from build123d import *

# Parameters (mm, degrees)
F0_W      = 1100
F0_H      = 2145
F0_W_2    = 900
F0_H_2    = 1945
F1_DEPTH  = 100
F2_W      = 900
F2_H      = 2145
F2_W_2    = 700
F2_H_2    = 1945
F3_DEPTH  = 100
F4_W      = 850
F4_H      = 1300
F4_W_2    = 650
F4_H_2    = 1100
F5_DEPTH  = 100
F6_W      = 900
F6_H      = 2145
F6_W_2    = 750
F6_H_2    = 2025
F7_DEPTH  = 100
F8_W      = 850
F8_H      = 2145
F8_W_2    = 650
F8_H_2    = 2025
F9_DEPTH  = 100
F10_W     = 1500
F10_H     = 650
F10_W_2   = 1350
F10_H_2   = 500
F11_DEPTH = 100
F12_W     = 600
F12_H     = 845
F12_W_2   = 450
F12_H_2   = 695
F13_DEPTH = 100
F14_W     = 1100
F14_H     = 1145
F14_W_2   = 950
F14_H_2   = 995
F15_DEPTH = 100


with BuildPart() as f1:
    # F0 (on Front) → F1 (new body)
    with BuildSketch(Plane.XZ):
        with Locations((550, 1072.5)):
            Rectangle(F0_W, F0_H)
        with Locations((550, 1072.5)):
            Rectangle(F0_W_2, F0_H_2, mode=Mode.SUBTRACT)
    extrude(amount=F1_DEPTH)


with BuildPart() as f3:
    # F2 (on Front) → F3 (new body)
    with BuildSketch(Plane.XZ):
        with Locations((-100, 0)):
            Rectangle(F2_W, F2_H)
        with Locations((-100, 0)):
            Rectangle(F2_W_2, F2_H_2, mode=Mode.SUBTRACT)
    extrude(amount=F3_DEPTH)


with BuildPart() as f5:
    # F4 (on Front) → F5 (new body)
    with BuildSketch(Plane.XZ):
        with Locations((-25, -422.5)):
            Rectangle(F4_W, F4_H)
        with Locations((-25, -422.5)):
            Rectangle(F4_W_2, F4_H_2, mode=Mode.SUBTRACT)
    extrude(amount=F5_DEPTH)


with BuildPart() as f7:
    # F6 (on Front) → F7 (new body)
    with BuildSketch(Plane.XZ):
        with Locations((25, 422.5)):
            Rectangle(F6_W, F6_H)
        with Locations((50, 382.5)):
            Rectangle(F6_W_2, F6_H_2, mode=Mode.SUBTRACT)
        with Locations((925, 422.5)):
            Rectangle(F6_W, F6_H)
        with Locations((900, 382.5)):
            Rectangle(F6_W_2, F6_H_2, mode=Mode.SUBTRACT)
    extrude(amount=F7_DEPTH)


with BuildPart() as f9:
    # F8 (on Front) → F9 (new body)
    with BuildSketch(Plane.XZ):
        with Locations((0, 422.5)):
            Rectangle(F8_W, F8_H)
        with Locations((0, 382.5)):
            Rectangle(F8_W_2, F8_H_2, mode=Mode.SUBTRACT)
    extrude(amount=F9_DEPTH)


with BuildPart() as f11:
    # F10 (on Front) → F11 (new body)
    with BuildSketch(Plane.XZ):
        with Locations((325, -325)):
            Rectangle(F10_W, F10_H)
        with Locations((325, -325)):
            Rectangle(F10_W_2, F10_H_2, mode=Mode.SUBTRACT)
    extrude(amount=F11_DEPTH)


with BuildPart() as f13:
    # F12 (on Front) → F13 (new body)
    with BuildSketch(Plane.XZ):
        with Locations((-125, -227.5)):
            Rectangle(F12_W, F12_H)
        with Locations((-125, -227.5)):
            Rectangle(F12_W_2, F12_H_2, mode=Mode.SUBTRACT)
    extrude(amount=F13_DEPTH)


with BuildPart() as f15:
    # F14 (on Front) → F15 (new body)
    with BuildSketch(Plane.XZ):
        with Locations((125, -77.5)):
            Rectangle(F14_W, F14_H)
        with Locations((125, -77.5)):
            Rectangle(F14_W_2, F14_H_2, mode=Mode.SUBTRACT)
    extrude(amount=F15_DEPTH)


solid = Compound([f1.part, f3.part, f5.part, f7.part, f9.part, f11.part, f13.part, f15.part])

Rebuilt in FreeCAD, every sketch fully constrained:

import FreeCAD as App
import Part
import Sketcher
from FreeCAD import Vector


def add_polygon(sketch, points):
    """Adds a closed chain of lines whose ends are joined by coincident constraints."""
    first, n = sketch.GeometryCount, len(points)
    for a, b in zip(points, points[1:] + points[:1]):
        sketch.addGeometry(Part.LineSegment(App.Vector(*a, 0), App.Vector(*b, 0)), False)
    for i in range(n):
        sketch.addConstraint(Sketcher.Constraint("Coincident", first + i, 2, first + (i + 1) % n, 1))

doc = App.newDocument("Part")
body = doc.addObject("PartDesign::Body", "Body")

# Sketch on XZ plane
sketch1 = body.newObject("Sketcher::SketchObject", "Sketch")
sketch1.AttachmentSupport = (doc.getObject("XZ_Plane"), [""])
sketch1.MapMode = "FlatFace"
add_polygon(sketch1, [(0, 2145), (0, 0), (1100, 0), (1100, 2145)])  # lines 0-3
add_polygon(sketch1, [(1000, 100), (100, 100), (100, 2045), (1000, 2045)])  # lines 4-7
sketch1.addConstraint([
    Sketcher.Constraint("Vertical", 0),
    Sketcher.Constraint("Horizontal", 1),
    Sketcher.Constraint("Vertical", 2),
    Sketcher.Constraint("Horizontal", 3),
    Sketcher.Constraint("Horizontal", 4),
    Sketcher.Constraint("Vertical", 5),
    Sketcher.Constraint("Horizontal", 6),
    Sketcher.Constraint("Vertical", 7),
    Sketcher.Constraint("Coincident", 0, 2, -1, 1),
    Sketcher.Constraint("DistanceX", 1, 1, 1, 2, 1100.0),
    Sketcher.Constraint("DistanceX", 4, 2, 4, 1, 900.0),
    Sketcher.Constraint("DistanceY", 0, 2, 0, 1, 2145.0),
    Sketcher.Constraint("DistanceY", 5, 1, 5, 2, 1945.0),
    Sketcher.Constraint("DistanceX", -1, 1, 4, 2, 100.0),
    Sketcher.Constraint("DistanceY", -1, 1, 4, 2, 100.0),
])
pad1 = body.newObject("PartDesign::Pad", "Pad")
pad1.Profile = sketch1
pad1.Length = 100
body2 = doc.addObject("PartDesign::Body", "Body001")

# Sketch on XZ plane
sketch2 = body2.newObject("Sketcher::SketchObject", "Sketch001")
sketch2.AttachmentSupport = (doc.getObject("XZ_Plane001"), [""])
sketch2.MapMode = "FlatFace"
add_polygon(sketch2, [(-550, 1072.5), (-550, -1072.5), (350, -1072.5), (350, 1072.5)])  # lines 0-3
add_polygon(sketch2, [(250, -972.5), (-450, -972.5), (-450, 972.5), (250, 972.5)])  # lines 4-7
sketch2.addConstraint([
    Sketcher.Constraint("Vertical", 0),
    Sketcher.Constraint("Horizontal", 1),
    Sketcher.Constraint("Vertical", 2),
    Sketcher.Constraint("Horizontal", 3),
    Sketcher.Constraint("Horizontal", 4),
    Sketcher.Constraint("Vertical", 5),
    Sketcher.Constraint("Horizontal", 6),
    Sketcher.Constraint("Vertical", 7),
    Sketcher.Constraint("DistanceX", 1, 1, 1, 2, 900.0),
    Sketcher.Constraint("DistanceX", 4, 2, 4, 1, 700.0),
    Sketcher.Constraint("DistanceY", 0, 2, 0, 1, 2145.0),
    Sketcher.Constraint("DistanceY", 5, 1, 5, 2, 1945.0),
    Sketcher.Constraint("DistanceX", 0, 2, -1, 1, 550.0),
    Sketcher.Constraint("DistanceX", 4, 2, -1, 1, 450.0),
    Sketcher.Constraint("DistanceY", 0, 2, 4, 2, 100.0),
    Sketcher.Constraint("DistanceY", 0, 2, -1, 1, 1072.5),
])
pad2 = body2.newObject("PartDesign::Pad", "Pad001")
pad2.Profile = sketch2
pad2.Length = 100
body3 = doc.addObject("PartDesign::Body", "Body002")

# Sketch on XZ plane
sketch3 = body3.newObject("Sketcher::SketchObject", "Sketch002")
sketch3.AttachmentSupport = (doc.getObject("XZ_Plane002"), [""])
sketch3.MapMode = "FlatFace"
add_polygon(sketch3, [(-450, 227.5), (-450, -1072.5), (400, -1072.5), (400, 227.5)])  # lines 0-3
add_polygon(sketch3, [(300, -972.5), (-350, -972.5), (-350, 127.5), (300, 127.5)])  # lines 4-7
sketch3.addConstraint([
    Sketcher.Constraint("Vertical", 0),
    Sketcher.Constraint("Horizontal", 1),
    Sketcher.Constraint("Vertical", 2),
    Sketcher.Constraint("Horizontal", 3),
    Sketcher.Constraint("Horizontal", 4),
    Sketcher.Constraint("Vertical", 5),
    Sketcher.Constraint("Horizontal", 6),
    Sketcher.Constraint("Vertical", 7),
    Sketcher.Constraint("DistanceX", 1, 1, 1, 2, 850.0),
    Sketcher.Constraint("DistanceX", 4, 2, 4, 1, 650.0),
    Sketcher.Constraint("DistanceY", 0, 2, 0, 1, 1300.0),
    Sketcher.Constraint("DistanceY", 5, 1, 5, 2, 1100.0),
    Sketcher.Constraint("DistanceX", 0, 2, -1, 1, 450.0),
    Sketcher.Constraint("DistanceX", 4, 2, -1, 1, 350.0),
    Sketcher.Constraint("DistanceY", 0, 2, 4, 2, 100.0),
    Sketcher.Constraint("DistanceY", 0, 2, -1, 1, 1072.5),
])
pad3 = body3.newObject("PartDesign::Pad", "Pad002")
pad3.Profile = sketch3
pad3.Length = 100
body4 = doc.addObject("PartDesign::Body", "Body003")

# Sketch on XZ plane
sketch4 = body4.newObject("Sketcher::SketchObject", "Sketch003")
sketch4.AttachmentSupport = (doc.getObject("XZ_Plane003"), [""])
sketch4.MapMode = "FlatFace"
add_polygon(sketch4, [(-425, 1495), (-425, -650), (1375, -650), (1375, 1495)])  # lines 0-3
add_polygon(sketch4, [(425, -630), (-325, -630), (-325, 1395), (425, 1395)])  # lines 4-7
add_polygon(sketch4, [(1275, -630), (525, -630), (525, 1395), (1275, 1395)])  # lines 8-11
sketch4.addConstraint([
    Sketcher.Constraint("Vertical", 0),
    Sketcher.Constraint("Horizontal", 1),
    Sketcher.Constraint("Vertical", 2),
    Sketcher.Constraint("Horizontal", 3),
    Sketcher.Constraint("Horizontal", 4),
    Sketcher.Constraint("Vertical", 5),
    Sketcher.Constraint("Horizontal", 6),
    Sketcher.Constraint("Vertical", 7),
    Sketcher.Constraint("Horizontal", 8),
    Sketcher.Constraint("Vertical", 9),
    Sketcher.Constraint("Horizontal", 10),
    Sketcher.Constraint("Vertical", 11),
    Sketcher.Constraint("Horizontal", 7, 2, 8, 2),
    Sketcher.Constraint("Horizontal", 6, 2, 9, 2),
    Sketcher.Constraint("Equal", 6, 8),
    Sketcher.Constraint("DistanceX", 1, 1, 1, 2, 1800.0),
    Sketcher.Constraint("DistanceX", 4, 2, 4, 1, 750.0),
    Sketcher.Constraint("DistanceY", 0, 2, 0, 1, 2145.0),
    Sketcher.Constraint("DistanceY", 5, 1, 5, 2, 2025.0),
    Sketcher.Constraint("DistanceX", 0, 2, -1, 1, 425.0),
    Sketcher.Constraint("DistanceY", 0, 2, -1, 1, 650.0),
    Sketcher.Constraint("DistanceX", 4, 2, -1, 1, 325.0),
    Sketcher.Constraint("DistanceY", 4, 2, -1, 1, 630.0),
    Sketcher.Constraint("DistanceX", -1, 1, 8, 2, 525.0),
])
pad4 = body4.newObject("PartDesign::Pad", "Pad003")
pad4.Profile = sketch4
pad4.Length = 100
body5 = doc.addObject("PartDesign::Body", "Body004")

# Sketch on XZ plane
sketch5 = body5.newObject("Sketcher::SketchObject", "Sketch004")
sketch5.AttachmentSupport = (doc.getObject("XZ_Plane004"), [""])
sketch5.MapMode = "FlatFace"
add_polygon(sketch5, [(-425, 1495), (-425, -650), (425, -650), (425, 1495)])  # lines 0-3
add_polygon(sketch5, [(325, -630), (-325, -630), (-325, 1395), (325, 1395)])  # lines 4-7
sketch5.addConstraint([
    Sketcher.Constraint("Vertical", 0),
    Sketcher.Constraint("Horizontal", 1),
    Sketcher.Constraint("Vertical", 2),
    Sketcher.Constraint("Horizontal", 3),
    Sketcher.Constraint("Horizontal", 4),
    Sketcher.Constraint("Vertical", 5),
    Sketcher.Constraint("Horizontal", 6),
    Sketcher.Constraint("Vertical", 7),
    Sketcher.Constraint("DistanceX", 1, 1, 1, 2, 850.0),
    Sketcher.Constraint("DistanceX", 4, 2, 4, 1, 650.0),
    Sketcher.Constraint("DistanceY", 0, 2, 0, 1, 2145.0),
    Sketcher.Constraint("DistanceY", 5, 1, 5, 2, 2025.0),
    Sketcher.Constraint("DistanceX", 0, 2, -1, 1, 425.0),
    Sketcher.Constraint("DistanceY", 0, 2, -1, 1, 650.0),
    Sketcher.Constraint("DistanceX", 4, 2, -1, 1, 325.0),
    Sketcher.Constraint("DistanceY", 4, 2, -1, 1, 630.0),
])
pad5 = body5.newObject("PartDesign::Pad", "Pad004")
pad5.Profile = sketch5
pad5.Length = 100
body6 = doc.addObject("PartDesign::Body", "Body005")

# Sketch on XZ plane
sketch6 = body6.newObject("Sketcher::SketchObject", "Sketch005")
sketch6.AttachmentSupport = (doc.getObject("XZ_Plane005"), [""])
sketch6.MapMode = "FlatFace"
add_polygon(sketch6, [(-425, 0), (-425, -650), (1075, -650), (1075, 0)])  # lines 0-3
add_polygon(sketch6, [(1000, -575), (-350, -575), (-350, -75), (1000, -75)])  # lines 4-7
sketch6.addConstraint([
    Sketcher.Constraint("Vertical", 0),
    Sketcher.Constraint("Horizontal", 1),
    Sketcher.Constraint("Vertical", 2),
    Sketcher.Constraint("Horizontal", 3),
    Sketcher.Constraint("Horizontal", 4),
    Sketcher.Constraint("Vertical", 5),
    Sketcher.Constraint("Horizontal", 6),
    Sketcher.Constraint("Vertical", 7),
    Sketcher.Constraint("PointOnObject", 2, 2, -1),
    Sketcher.Constraint("DistanceX", 1, 1, 1, 2, 1500.0),
    Sketcher.Constraint("DistanceX", 4, 2, 4, 1, 1350.0),
    Sketcher.Constraint("DistanceY", 0, 2, 0, 1, 650.0),
    Sketcher.Constraint("DistanceY", 5, 1, 5, 2, 500.0),
    Sketcher.Constraint("DistanceX", 0, 2, -1, 1, 425.0),
    Sketcher.Constraint("DistanceX", 4, 2, -1, 1, 350.0),
    Sketcher.Constraint("DistanceY", 4, 2, -1, 1, 575.0),
])
pad6 = body6.newObject("PartDesign::Pad", "Pad005")
pad6.Profile = sketch6
pad6.Length = 100
body7 = doc.addObject("PartDesign::Body", "Body006")

# Sketch on XZ plane
sketch7 = body7.newObject("Sketcher::SketchObject", "Sketch006")
sketch7.AttachmentSupport = (doc.getObject("XZ_Plane006"), [""])
sketch7.MapMode = "FlatFace"
add_polygon(sketch7, [(-425, 195), (-425, -650), (175, -650), (175, 195)])  # lines 0-3
add_polygon(sketch7, [(100, -575), (-350, -575), (-350, 120), (100, 120)])  # lines 4-7
sketch7.addConstraint([
    Sketcher.Constraint("Vertical", 0),
    Sketcher.Constraint("Horizontal", 1),
    Sketcher.Constraint("Vertical", 2),
    Sketcher.Constraint("Horizontal", 3),
    Sketcher.Constraint("Horizontal", 4),
    Sketcher.Constraint("Vertical", 5),
    Sketcher.Constraint("Horizontal", 6),
    Sketcher.Constraint("Vertical", 7),
    Sketcher.Constraint("DistanceX", 1, 1, 1, 2, 600.0),
    Sketcher.Constraint("DistanceX", 4, 2, 4, 1, 450.0),
    Sketcher.Constraint("DistanceY", 0, 2, 0, 1, 845.0),
    Sketcher.Constraint("DistanceY", 5, 1, 5, 2, 695.0),
    Sketcher.Constraint("DistanceX", 0, 2, -1, 1, 425.0),
    Sketcher.Constraint("DistanceY", 0, 2, -1, 1, 650.0),
    Sketcher.Constraint("DistanceX", 4, 2, -1, 1, 350.0),
    Sketcher.Constraint("DistanceY", 4, 2, -1, 1, 575.0),
])
pad7 = body7.newObject("PartDesign::Pad", "Pad006")
pad7.Profile = sketch7
pad7.Length = 100
body8 = doc.addObject("PartDesign::Body", "Body007")

# Sketch on XZ plane
sketch8 = body8.newObject("Sketcher::SketchObject", "Sketch007")
sketch8.AttachmentSupport = (doc.getObject("XZ_Plane007"), [""])
sketch8.MapMode = "FlatFace"
add_polygon(sketch8, [(-425, 495), (-425, -650), (675, -650), (675, 495)])  # lines 0-3
add_polygon(sketch8, [(600, -575), (-350, -575), (-350, 420), (600, 420)])  # lines 4-7
sketch8.addConstraint([
    Sketcher.Constraint("Vertical", 0),
    Sketcher.Constraint("Horizontal", 1),
    Sketcher.Constraint("Vertical", 2),
    Sketcher.Constraint("Horizontal", 3),
    Sketcher.Constraint("Horizontal", 4),
    Sketcher.Constraint("Vertical", 5),
    Sketcher.Constraint("Horizontal", 6),
    Sketcher.Constraint("Vertical", 7),
    Sketcher.Constraint("DistanceX", 1, 1, 1, 2, 1100.0),
    Sketcher.Constraint("DistanceX", 4, 2, 4, 1, 950.0),
    Sketcher.Constraint("DistanceY", 0, 2, 0, 1, 1145.0),
    Sketcher.Constraint("DistanceY", 5, 1, 5, 2, 995.0),
    Sketcher.Constraint("DistanceX", 0, 2, -1, 1, 425.0),
    Sketcher.Constraint("DistanceY", 0, 2, -1, 1, 650.0),
    Sketcher.Constraint("DistanceX", 4, 2, -1, 1, 350.0),
    Sketcher.Constraint("DistanceY", 4, 2, -1, 1, 575.0),
])
pad8 = body8.newObject("PartDesign::Pad", "Pad007")
pad8.Profile = sketch8
pad8.Length = 100

doc.recompute()
